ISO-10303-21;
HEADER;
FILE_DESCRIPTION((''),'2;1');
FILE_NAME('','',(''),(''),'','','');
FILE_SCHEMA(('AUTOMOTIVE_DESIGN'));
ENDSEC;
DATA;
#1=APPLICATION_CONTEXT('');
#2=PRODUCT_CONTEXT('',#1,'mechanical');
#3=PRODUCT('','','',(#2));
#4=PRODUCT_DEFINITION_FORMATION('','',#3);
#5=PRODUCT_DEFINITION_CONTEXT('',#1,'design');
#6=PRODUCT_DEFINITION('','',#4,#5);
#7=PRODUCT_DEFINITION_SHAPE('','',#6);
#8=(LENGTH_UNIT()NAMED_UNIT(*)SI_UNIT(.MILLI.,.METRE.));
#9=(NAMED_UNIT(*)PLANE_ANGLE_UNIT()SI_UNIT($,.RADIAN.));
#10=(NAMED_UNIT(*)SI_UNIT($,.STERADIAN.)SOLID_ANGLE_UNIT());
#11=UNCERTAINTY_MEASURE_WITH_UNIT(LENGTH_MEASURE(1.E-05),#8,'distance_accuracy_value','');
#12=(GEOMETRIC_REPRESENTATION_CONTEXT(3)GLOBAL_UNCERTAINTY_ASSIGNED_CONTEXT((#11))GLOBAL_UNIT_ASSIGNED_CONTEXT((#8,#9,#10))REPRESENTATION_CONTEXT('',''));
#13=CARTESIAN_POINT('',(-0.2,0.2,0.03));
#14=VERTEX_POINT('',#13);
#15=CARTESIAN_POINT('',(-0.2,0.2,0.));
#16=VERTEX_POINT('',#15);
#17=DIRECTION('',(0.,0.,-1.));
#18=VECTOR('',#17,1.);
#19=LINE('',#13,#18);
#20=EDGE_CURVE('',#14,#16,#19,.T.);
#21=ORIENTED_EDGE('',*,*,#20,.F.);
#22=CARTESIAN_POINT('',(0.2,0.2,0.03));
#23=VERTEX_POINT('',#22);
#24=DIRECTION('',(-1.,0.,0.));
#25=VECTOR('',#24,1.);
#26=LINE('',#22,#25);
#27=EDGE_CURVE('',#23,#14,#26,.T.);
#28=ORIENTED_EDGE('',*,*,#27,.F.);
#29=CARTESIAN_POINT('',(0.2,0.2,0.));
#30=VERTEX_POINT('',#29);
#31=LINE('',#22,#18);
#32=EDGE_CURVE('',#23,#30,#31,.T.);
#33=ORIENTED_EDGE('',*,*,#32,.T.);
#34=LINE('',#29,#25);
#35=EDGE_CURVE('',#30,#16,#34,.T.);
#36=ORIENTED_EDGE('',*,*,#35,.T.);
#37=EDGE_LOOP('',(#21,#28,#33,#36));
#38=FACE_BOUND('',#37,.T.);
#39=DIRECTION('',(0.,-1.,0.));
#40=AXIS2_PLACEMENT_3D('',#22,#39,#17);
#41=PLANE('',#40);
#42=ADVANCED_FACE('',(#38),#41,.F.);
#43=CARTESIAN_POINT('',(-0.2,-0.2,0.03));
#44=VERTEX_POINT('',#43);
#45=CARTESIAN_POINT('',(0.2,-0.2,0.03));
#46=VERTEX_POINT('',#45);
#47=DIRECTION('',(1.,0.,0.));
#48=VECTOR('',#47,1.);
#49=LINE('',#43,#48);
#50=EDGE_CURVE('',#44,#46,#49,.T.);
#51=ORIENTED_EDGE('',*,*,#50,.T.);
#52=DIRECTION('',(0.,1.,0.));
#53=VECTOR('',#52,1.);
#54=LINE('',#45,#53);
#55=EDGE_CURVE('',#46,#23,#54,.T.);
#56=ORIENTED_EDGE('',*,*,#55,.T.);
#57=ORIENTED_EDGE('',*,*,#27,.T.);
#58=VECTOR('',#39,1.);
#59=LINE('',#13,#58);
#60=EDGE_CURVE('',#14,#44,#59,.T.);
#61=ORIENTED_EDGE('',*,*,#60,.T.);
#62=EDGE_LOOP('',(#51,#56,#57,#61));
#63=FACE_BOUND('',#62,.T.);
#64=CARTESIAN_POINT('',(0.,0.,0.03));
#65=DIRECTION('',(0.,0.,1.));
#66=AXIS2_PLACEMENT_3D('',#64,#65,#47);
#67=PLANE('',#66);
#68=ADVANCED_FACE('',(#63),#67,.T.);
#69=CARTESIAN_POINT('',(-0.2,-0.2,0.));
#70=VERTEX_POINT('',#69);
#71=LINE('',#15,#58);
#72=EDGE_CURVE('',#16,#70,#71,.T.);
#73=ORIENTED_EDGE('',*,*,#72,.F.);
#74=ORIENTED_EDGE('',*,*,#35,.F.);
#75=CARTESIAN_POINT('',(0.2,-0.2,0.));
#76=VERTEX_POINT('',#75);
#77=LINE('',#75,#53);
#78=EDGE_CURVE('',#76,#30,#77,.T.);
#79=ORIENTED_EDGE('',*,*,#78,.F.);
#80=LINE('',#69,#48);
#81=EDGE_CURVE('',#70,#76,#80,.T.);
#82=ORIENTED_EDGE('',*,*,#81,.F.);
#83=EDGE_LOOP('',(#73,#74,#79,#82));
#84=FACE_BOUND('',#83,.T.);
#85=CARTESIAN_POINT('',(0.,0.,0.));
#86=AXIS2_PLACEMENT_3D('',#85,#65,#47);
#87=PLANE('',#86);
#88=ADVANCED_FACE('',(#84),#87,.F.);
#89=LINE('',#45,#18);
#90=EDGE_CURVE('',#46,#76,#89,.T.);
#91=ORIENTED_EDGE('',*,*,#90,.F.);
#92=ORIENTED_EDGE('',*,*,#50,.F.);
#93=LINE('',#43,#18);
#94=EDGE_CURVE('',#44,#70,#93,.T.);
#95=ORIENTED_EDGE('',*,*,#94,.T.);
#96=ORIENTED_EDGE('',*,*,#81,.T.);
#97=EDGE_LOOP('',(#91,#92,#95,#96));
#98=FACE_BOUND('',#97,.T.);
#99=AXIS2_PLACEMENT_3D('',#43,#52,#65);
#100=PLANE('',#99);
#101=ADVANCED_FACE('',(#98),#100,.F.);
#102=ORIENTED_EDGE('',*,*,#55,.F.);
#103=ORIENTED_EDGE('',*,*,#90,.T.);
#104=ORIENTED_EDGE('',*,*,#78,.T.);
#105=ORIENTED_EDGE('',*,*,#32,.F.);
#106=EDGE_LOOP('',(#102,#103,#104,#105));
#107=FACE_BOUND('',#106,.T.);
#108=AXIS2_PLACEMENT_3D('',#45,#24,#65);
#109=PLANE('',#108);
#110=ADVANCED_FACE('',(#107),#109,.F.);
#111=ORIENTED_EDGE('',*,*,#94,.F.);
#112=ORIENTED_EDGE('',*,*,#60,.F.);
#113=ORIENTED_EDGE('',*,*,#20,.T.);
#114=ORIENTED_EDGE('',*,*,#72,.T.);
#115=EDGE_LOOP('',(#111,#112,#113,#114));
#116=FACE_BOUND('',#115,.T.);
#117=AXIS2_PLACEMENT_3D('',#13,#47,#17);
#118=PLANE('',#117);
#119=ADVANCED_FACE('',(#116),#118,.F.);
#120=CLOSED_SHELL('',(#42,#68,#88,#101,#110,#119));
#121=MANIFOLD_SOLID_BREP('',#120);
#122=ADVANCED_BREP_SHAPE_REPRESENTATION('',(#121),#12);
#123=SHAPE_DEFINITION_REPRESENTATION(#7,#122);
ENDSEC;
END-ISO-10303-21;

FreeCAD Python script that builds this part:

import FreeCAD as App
import Part
import Sketcher

V = App.Vector
Q = App.Units.Quantity

doc = App.newDocument("Part")
body = doc.addObject("PartDesign::Body", "Body")

# Sketch on XY plane
sketch1 = body.newObject("Sketcher::SketchObject", "Sketch")
sketch1.AttachmentSupport = (doc.getObject("XY_Plane"), [""])
sketch1.MapMode = "FlatFace"
sketch1.addGeometry(Part.LineSegment(V(-0.2, 0.2, 0), V(-0.2, -0.2, 0)), False)
sketch1.addGeometry(Part.LineSegment(V(-0.2, -0.2, 0), V(0.2, -0.2, 0)), False)
sketch1.addGeometry(Part.LineSegment(V(0.2, -0.2, 0), V(0.2, 0.2, 0)), False)
sketch1.addGeometry(Part.LineSegment(V(0.2, 0.2, 0), V(-0.2, 0.2, 0)), False)
sketch1.addConstraint(Sketcher.Constraint("Coincident", 0, 2, 1, 1))
sketch1.addConstraint(Sketcher.Constraint("Coincident", 1, 2, 2, 1))
sketch1.addConstraint(Sketcher.Constraint("Coincident", 2, 2, 3, 1))
sketch1.addConstraint(Sketcher.Constraint("Coincident", 3, 2, 0, 1))
sketch1.addConstraint(Sketcher.Constraint("Vertical", 0))
sketch1.addConstraint(Sketcher.Constraint("Horizontal", 1))
sketch1.addConstraint(Sketcher.Constraint("Vertical", 2))
sketch1.addConstraint(Sketcher.Constraint("Horizontal", 3))
sketch1.addConstraint(Sketcher.Constraint("Symmetric", 0, 2, 2, 2, -1, 1))
sketch1.addConstraint(Sketcher.Constraint("Equal", 3, 0))
sketch1.addConstraint(Sketcher.Constraint("DistanceX", 1, 1, 1, 2, Q("0.4 mm")))
pad1 = body.newObject("PartDesign::Pad", "Pad")
pad1.Profile = sketch1
pad1.Length = 0.03

doc.recompute()
